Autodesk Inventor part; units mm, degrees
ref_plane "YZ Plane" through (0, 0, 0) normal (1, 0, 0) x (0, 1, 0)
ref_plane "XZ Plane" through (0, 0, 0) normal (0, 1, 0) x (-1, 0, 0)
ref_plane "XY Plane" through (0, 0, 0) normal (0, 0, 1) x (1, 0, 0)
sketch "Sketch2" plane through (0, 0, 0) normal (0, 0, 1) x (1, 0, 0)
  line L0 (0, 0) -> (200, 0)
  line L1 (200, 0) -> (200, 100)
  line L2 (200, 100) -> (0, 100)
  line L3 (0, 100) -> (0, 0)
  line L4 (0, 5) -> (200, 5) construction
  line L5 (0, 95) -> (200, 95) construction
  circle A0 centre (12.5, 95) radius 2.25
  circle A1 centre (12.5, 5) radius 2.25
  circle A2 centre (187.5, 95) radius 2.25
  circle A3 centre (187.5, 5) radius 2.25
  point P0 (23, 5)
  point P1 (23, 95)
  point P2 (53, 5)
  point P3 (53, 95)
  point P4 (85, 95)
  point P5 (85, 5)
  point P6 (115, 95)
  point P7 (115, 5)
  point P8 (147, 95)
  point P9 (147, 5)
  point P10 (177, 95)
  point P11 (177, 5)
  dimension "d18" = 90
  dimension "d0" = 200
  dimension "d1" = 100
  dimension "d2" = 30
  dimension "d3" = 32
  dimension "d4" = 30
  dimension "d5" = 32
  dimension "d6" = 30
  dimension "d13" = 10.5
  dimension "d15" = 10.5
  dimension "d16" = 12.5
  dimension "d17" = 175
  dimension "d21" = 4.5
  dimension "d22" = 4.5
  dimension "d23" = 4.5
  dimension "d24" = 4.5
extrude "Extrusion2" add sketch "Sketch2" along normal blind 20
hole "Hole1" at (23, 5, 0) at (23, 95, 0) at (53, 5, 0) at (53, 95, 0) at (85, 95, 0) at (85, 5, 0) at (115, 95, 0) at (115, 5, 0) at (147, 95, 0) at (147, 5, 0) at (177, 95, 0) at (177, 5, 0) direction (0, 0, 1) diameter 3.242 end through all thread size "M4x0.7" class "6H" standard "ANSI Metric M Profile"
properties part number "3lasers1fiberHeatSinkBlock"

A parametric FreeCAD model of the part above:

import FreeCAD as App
import Part
import Sketcher
from FreeCAD import Vector


def add_polygon(sketch, points):
    """Adds a closed chain of lines whose ends are joined by coincident constraints."""
    first, n = sketch.GeometryCount, len(points)
    for a, b in zip(points, points[1:] + points[:1]):
        sketch.addGeometry(Part.LineSegment(App.Vector(*a, 0), App.Vector(*b, 0)), False)
    for i in range(n):
        sketch.addConstraint(Sketcher.Constraint("Coincident", first + i, 2, first + (i + 1) % n, 1))

doc = App.newDocument("Part")
body = doc.addObject("PartDesign::Body", "Body")

# Sketch on XY plane
sketch1 = doc.addObject("Sketcher::SketchObject", "Sketch")
body.addObject(sketch1)
sketch1.AttachmentSupport = (doc.XY_Plane, [""])
sketch1.MapMode = "FlatFace"
add_polygon(sketch1, [(0, 100), (0, 0), (200, 0), (200, 100)])  # lines 0-3
sketch1.addGeometry(Part.Circle(Vector(12.5, 5, 0), Vector(0, 0, 1), 2.2), False)  # 4
sketch1.addGeometry(Part.Circle(Vector(187.5, 5, 0), Vector(0, 0, 1), 2.2), False)  # 5
sketch1.addGeometry(Part.Circle(Vector(12.5, 95, 0), Vector(0, 0, 1), 2.2), False)  # 6
sketch1.addGeometry(Part.Circle(Vector(187.5, 95, 0), Vector(0, 0, 1), 2.2), False)  # 7
sketch1.addConstraint([
    Sketcher.Constraint("Vertical", 0),
    Sketcher.Constraint("Horizontal", 1),
    Sketcher.Constraint("Vertical", 2),
    Sketcher.Constraint("Horizontal", 3),
    Sketcher.Constraint("Coincident", 0, 2, -1, 1),
    Sketcher.Constraint("Equal", 4, 5),
    Sketcher.Constraint("Equal", 5, 6),
    Sketcher.Constraint("Equal", 6, 7),
    Sketcher.Constraint("Horizontal", 4, 3, 5, 3),
    Sketcher.Constraint("Horizontal", 6, 3, 7, 3),
    Sketcher.Constraint("Vertical", 4, 3, 6, 3),
    Sketcher.Constraint("Vertical", 5, 3, 7, 3),
    Sketcher.Constraint("Diameter", 4, 4.5),
    Sketcher.Constraint("DistanceX", 1, 1, 1, 2, 200.0),
    Sketcher.Constraint("DistanceY", 0, 2, 0, 1, 100.0),
    Sketcher.Constraint("DistanceX", 4, 3, 5, 3, 175.0),
    Sketcher.Constraint("DistanceY", 4, 3, 6, 3, 90.0),
    Sketcher.Constraint("DistanceX", -1, 1, 4, 3, 12.5),
    Sketcher.Constraint("DistanceY", -1, 1, 4, 3, 5.0),
])
pad1 = doc.addObject("PartDesign::Pad", "Pad")
body.addObject(pad1)
pad1.Profile = sketch1
pad1.Length = 20

# Sketch on XY plane
sketch2 = doc.addObject("Sketcher::SketchObject", "Sketch001")
body.addObject(sketch2)
sketch2.AttachmentSupport = (doc.XY_Plane, [""])
sketch2.MapMode = "FlatFace"
sketch2.addGeometry([
    Part.Circle(Vector(23, 5, 0), Vector(0, 0, 1), 1.6),  # 0
    Part.Circle(Vector(23, 95, 0), Vector(0, 0, 1), 1.6),  # 1
    Part.Circle(Vector(53, 5, 0), Vector(0, 0, 1), 1.6),  # 2
    Part.Circle(Vector(53, 95, 0), Vector(0, 0, 1), 1.6),  # 3
    Part.Circle(Vector(85, 95, 0), Vector(0, 0, 1), 1.6),  # 4
    Part.Circle(Vector(85, 5, 0), Vector(0, 0, 1), 1.6),  # 5
    Part.Circle(Vector(115, 95, 0), Vector(0, 0, 1), 1.6),  # 6
    Part.Circle(Vector(115, 5, 0), Vector(0, 0, 1), 1.6),  # 7
    Part.Circle(Vector(147, 95, 0), Vector(0, 0, 1), 1.6),  # 8
    Part.Circle(Vector(147, 5, 0), Vector(0, 0, 1), 1.6),  # 9
    Part.Circle(Vector(177, 95, 0), Vector(0, 0, 1), 1.6),  # 10
    Part.Circle(Vector(177, 5, 0), Vector(0, 0, 1), 1.6),  # 11
], False)
sketch2.addConstraint([
    Sketcher.Constraint("Equal", 0, 1),
    Sketcher.Constraint("Equal", 1, 2),
    Sketcher.Constraint("Equal", 2, 3),
    Sketcher.Constraint("Equal", 3, 4),
    Sketcher.Constraint("Equal", 4, 5),
    Sketcher.Constraint("Equal", 5, 6),
    Sketcher.Constraint("Equal", 6, 7),
    Sketcher.Constraint("Equal", 7, 8),
    Sketcher.Constraint("Equal", 8, 9),
    Sketcher.Constraint("Equal", 9, 10),
    Sketcher.Constraint("Equal", 10, 11),
    Sketcher.Constraint("Horizontal", 0, 3, 2, 3),
    Sketcher.Constraint("Horizontal", 1, 3, 3, 3),
    Sketcher.Constraint("Horizontal", 3, 3, 4, 3),
    Sketcher.Constraint("Horizontal", 2, 3, 5, 3),
    Sketcher.Constraint("Horizontal", 4, 3, 6, 3),
    Sketcher.Constraint("Horizontal", 5, 3, 7, 3),
    Sketcher.Constraint("Horizontal", 6, 3, 8, 3),
    Sketcher.Constraint("Horizontal", 7, 3, 9, 3),
    Sketcher.Constraint("Horizontal", 8, 3, 10, 3),
    Sketcher.Constraint("Horizontal", 9, 3, 11, 3),
    Sketcher.Constraint("Vertical", 0, 3, 1, 3),
    Sketcher.Constraint("Vertical", 2, 3, 3, 3),
    Sketcher.Constraint("Vertical", 4, 3, 5, 3),
    Sketcher.Constraint("Vertical", 6, 3, 7, 3),
    Sketcher.Constraint("Vertical", 8, 3, 9, 3),
    Sketcher.Constraint("Vertical", 10, 3, 11, 3),
    Sketcher.Constraint("Diameter", 0, 3.242),
    Sketcher.Constraint("DistanceX", -1, 1, 0, 3, 23.0),
    Sketcher.Constraint("DistanceY", -1, 1, 0, 3, 5.0),
    Sketcher.Constraint("DistanceY", -1, 1, 1, 3, 95.0),
    Sketcher.Constraint("DistanceX", -1, 1, 2, 3, 53.0),
    Sketcher.Constraint("DistanceX", -1, 1, 4, 3, 85.0),
    Sketcher.Constraint("DistanceX", -1, 1, 6, 3, 115.0),
    Sketcher.Constraint("DistanceX", -1, 1, 8, 3, 147.0),
    Sketcher.Constraint("DistanceX", -1, 1, 10, 3, 177.0),
])
doc.recompute()
hole = doc.addObject("PartDesign::Hole", "Hole")
body.addObject(hole)
hole.Profile = sketch2
hole.ThreadType = "None"
hole.Diameter = 3.242
hole.DepthType = "ThroughAll"
hole.Reversed = True

doc.recompute()
